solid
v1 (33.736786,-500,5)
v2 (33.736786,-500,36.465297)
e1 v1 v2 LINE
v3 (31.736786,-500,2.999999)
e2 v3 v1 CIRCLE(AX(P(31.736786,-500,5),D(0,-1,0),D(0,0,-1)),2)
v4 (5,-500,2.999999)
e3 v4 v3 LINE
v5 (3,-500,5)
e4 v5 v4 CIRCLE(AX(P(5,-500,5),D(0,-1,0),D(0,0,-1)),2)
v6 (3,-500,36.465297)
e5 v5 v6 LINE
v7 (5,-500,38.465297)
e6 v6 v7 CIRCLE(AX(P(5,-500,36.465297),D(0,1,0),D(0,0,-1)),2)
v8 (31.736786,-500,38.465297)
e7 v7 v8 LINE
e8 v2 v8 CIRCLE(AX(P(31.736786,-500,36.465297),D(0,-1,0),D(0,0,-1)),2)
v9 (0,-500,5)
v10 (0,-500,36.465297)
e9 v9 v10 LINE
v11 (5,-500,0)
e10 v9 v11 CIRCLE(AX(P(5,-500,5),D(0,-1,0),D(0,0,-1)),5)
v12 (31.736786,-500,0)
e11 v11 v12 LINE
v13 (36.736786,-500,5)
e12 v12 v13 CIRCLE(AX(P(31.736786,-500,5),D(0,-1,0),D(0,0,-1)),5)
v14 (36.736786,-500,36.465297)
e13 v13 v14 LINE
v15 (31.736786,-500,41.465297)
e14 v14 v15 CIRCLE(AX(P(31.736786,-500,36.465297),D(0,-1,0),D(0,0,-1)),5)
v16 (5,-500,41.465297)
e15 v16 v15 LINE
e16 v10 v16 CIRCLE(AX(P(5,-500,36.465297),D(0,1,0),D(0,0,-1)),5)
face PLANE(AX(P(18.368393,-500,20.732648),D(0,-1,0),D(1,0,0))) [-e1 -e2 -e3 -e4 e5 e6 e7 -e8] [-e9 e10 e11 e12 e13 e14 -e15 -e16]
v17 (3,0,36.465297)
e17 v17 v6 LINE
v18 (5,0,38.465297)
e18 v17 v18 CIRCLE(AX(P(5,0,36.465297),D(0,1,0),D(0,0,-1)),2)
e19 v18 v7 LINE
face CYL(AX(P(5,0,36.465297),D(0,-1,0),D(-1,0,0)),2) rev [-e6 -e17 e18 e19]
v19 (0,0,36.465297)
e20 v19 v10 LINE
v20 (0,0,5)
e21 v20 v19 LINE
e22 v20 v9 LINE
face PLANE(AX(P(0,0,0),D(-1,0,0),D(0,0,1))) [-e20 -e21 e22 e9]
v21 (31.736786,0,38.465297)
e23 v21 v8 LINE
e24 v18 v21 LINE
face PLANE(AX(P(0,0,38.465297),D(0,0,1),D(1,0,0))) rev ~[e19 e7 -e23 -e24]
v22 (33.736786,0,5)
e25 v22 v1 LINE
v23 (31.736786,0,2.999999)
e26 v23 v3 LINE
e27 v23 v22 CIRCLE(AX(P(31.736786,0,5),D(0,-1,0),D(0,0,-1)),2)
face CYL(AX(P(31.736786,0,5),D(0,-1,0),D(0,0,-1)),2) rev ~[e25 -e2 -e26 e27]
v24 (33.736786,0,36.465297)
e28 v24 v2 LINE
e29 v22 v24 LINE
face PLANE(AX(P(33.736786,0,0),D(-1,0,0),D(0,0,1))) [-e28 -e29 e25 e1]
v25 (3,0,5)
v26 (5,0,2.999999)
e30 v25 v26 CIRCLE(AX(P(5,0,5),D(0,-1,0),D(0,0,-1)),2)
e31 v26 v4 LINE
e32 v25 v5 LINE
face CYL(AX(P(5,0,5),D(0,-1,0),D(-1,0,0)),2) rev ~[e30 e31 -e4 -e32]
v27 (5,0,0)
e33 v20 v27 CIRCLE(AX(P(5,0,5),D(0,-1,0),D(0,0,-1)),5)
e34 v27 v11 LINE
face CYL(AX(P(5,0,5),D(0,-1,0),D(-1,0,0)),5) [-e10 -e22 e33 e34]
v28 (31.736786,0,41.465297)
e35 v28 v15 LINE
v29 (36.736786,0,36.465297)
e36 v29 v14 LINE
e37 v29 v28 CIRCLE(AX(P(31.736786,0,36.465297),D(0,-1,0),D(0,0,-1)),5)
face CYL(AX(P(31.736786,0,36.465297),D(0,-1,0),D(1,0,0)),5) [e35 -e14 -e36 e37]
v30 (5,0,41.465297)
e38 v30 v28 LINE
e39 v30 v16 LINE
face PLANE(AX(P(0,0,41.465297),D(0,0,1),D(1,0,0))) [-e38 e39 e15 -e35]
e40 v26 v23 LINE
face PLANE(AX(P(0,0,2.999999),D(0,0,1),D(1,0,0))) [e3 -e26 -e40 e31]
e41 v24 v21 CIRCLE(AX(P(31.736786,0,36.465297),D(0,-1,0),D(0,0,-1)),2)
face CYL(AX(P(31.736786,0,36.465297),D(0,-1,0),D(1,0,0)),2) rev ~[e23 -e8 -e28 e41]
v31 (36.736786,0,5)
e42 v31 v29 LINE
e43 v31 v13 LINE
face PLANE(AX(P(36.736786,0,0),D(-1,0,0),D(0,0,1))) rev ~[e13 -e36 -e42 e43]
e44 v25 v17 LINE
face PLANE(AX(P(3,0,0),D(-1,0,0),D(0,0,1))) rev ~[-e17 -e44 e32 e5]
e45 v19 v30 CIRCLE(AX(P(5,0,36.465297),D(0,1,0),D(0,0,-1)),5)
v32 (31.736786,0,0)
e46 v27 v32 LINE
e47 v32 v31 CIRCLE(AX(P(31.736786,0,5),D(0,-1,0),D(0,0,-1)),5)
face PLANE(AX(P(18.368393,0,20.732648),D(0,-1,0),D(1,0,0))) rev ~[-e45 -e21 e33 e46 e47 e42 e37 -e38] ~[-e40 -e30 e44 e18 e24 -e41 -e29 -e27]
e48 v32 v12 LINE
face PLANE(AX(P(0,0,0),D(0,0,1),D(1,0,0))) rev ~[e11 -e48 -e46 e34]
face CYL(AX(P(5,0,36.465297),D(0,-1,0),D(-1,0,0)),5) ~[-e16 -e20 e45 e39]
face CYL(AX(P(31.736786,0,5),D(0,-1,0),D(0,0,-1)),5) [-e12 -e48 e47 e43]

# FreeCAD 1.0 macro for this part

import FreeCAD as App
import Part
import Sketcher


def edges_at(feature, points):
    """Names of the edges that pass closest to the given points."""
    edges = feature.Shape.Edges
    near = lambda p: min(range(len(edges)), key=lambda i: edges[i].distToShape(Part.Vertex(*p))[0])
    return sorted({f"Edge{near(p) + 1}" for p in points})


def faces_at(feature, points):
    """Names of the faces that lie closest to the given points."""
    faces = feature.Shape.Faces
    near = lambda p: min(range(len(faces)), key=lambda i: faces[i].distToShape(Part.Vertex(*p))[0])
    return sorted({f"Face{near(p) + 1}" for p in points})

doc = App.newDocument("Part")
body = doc.addObject("PartDesign::Body", "Body")

# Sketch on XZ plane
sketch1 = doc.addObject("Sketcher::SketchObject", "Sketch")
body.addObject(sketch1)
sketch1.AttachmentSupport = (doc.XZ_Plane, [""])
sketch1.MapMode = "FlatFace"
sketch1.addGeometry([
    Part.LineSegment(App.Vector(0, 41.465297, 0), App.Vector(0, 0, 0)),
    Part.LineSegment(App.Vector(0, 0, 0), App.Vector(36.736786, 0, 0)),
    Part.LineSegment(App.Vector(36.736786, 0, 0), App.Vector(36.736786, 41.465297, 0)),
    Part.LineSegment(App.Vector(36.736786, 41.465297, 0), App.Vector(0, 41.465297, 0)),
], False)
sketch1.addConstraint([
    Sketcher.Constraint("Coincident", 0, 2, 1, 1),
    Sketcher.Constraint("Coincident", 1, 2, 2, 1),
    Sketcher.Constraint("Coincident", 2, 2, 3, 1),
    Sketcher.Constraint("Coincident", 3, 2, 0, 1),
    Sketcher.Constraint("Vertical", 0),
    Sketcher.Constraint("Horizontal", 1),
    Sketcher.Constraint("Vertical", 2),
    Sketcher.Constraint("Horizontal", 3),
    Sketcher.Constraint("Coincident", 0, 2, -1, 1),
    Sketcher.Constraint("DistanceX", 1, 1, 1, 2, 36.736786),
    Sketcher.Constraint("DistanceY", 0, 2, 0, 1, 41.465297),
])
pad1 = doc.addObject("PartDesign::Pad", "Pad")
body.addObject(pad1)
pad1.Profile = sketch1
pad1.Length = 500
doc.recompute()

fillet = doc.addObject("PartDesign::Fillet", "Fillet")
body.addObject(fillet)
fillet.Base = (pad1, edges_at(pad1, [
    (36.737, -250, 41.465),
    (0, -250, 41.465),
    (36.737, -250, 0),
    (0, -250, 0),
]))
fillet.Radius = 5
doc.recompute()

thickness = doc.addObject("PartDesign::Thickness", "Thickness")
body.addObject(thickness)
thickness.Base = (fillet, faces_at(fillet, [(18.368, -500, 20.733), (18.368, 0, 20.733)]))
thickness.Value = 3
thickness.Reversed = True
thickness.Join = "Arc"

doc.recompute()
